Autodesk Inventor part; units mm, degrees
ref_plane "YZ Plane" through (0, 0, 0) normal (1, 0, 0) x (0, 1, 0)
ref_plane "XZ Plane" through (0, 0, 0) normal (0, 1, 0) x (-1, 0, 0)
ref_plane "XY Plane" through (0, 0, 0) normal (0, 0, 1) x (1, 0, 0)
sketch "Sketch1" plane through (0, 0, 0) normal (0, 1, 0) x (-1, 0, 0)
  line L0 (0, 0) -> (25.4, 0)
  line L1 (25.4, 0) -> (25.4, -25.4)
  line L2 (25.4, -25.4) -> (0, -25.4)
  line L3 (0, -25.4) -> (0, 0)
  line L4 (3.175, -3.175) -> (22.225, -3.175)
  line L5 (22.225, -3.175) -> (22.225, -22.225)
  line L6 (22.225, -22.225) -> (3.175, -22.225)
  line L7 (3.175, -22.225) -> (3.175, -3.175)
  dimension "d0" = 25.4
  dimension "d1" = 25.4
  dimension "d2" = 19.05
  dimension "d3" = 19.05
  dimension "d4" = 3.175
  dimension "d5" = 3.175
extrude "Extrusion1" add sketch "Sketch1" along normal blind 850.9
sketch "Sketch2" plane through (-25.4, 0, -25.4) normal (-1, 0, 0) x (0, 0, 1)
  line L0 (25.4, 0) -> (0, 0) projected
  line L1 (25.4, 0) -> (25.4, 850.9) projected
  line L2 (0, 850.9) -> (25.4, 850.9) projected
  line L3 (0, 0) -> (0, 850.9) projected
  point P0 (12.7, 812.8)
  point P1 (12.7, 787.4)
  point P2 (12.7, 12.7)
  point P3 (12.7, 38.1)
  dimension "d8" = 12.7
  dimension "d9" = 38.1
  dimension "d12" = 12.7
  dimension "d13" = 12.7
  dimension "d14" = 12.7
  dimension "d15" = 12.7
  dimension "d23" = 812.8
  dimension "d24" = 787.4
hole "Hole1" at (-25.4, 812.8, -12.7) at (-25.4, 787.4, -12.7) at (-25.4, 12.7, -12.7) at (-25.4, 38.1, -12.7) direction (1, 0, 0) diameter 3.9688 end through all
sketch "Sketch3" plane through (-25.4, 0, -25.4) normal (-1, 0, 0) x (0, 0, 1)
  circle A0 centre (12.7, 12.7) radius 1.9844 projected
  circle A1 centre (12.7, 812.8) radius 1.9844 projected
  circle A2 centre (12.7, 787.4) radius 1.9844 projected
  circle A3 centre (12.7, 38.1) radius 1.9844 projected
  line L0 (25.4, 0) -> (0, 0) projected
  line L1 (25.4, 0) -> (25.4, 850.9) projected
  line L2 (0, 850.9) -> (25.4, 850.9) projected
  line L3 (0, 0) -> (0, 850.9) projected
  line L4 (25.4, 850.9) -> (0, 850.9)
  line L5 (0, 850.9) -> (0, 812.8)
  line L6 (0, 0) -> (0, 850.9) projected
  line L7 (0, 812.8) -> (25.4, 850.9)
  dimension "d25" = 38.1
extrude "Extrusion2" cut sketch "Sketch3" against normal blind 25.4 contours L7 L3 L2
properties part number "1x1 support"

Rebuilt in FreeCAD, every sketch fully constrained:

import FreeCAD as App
import Part
import Sketcher
from FreeCAD import Vector
Q = App.Units.Quantity


def add_polygon(sketch, points):
    """Adds a closed chain of lines whose ends are joined by coincident constraints."""
    first, n = sketch.GeometryCount, len(points)
    for a, b in zip(points, points[1:] + points[:1]):
        sketch.addGeometry(Part.LineSegment(App.Vector(*a, 0), App.Vector(*b, 0)), False)
    for i in range(n):
        sketch.addConstraint(Sketcher.Constraint("Coincident", first + i, 2, first + (i + 1) % n, 1))

doc = App.newDocument("Part")
body = doc.addObject("PartDesign::Body", "Body")

sketch1 = body.newObject("Sketcher::SketchObject", "Sketch")
sketch1.AttachmentSupport = (doc.getObject("XZ_Plane"), [""])
sketch1.MapMode = "FlatFace"
add_polygon(sketch1, [(-25, 0), (0, 0), (0, -25), (-25, -25)])
add_polygon(sketch1, [(-3, -22), (-3, -3), (-22, -3), (-22, -22)])
sketch1.addConstraint(Sketcher.Constraint("Horizontal", 0))
sketch1.addConstraint(Sketcher.Constraint("Vertical", 1))
sketch1.addConstraint(Sketcher.Constraint("Horizontal", 2))
sketch1.addConstraint(Sketcher.Constraint("Vertical", 3))
sketch1.addConstraint(Sketcher.Constraint("Vertical", 4))
sketch1.addConstraint(Sketcher.Constraint("Horizontal", 5))
sketch1.addConstraint(Sketcher.Constraint("Vertical", 6))
sketch1.addConstraint(Sketcher.Constraint("Horizontal", 7))
sketch1.addConstraint(Sketcher.Constraint("Coincident", 0, 2, -1, 1))
sketch1.addConstraint(Sketcher.Constraint("Equal", 2, 1))
sketch1.addConstraint(Sketcher.Constraint("Equal", 7, 4))
sketch1.addConstraint(Sketcher.Constraint("DistanceX", 0, 1, 0, 2, Q("1 in")))
sketch1.addConstraint(Sketcher.Constraint("DistanceX", 5, 2, 5, 1, Q("0.75 in")))
sketch1.addConstraint(Sketcher.Constraint("DistanceX", 4, 2, -1, 1, Q("0.125 in")))
sketch1.addConstraint(Sketcher.Constraint("DistanceY", 4, 2, -1, 1, Q("0.125 in")))
pad1 = body.newObject("PartDesign::Pad", "Pad")
pad1.Profile = sketch1
pad1.Length = Q("33.5 in")
pad1.Reversed = True

sketch2 = body.newObject("Sketcher::SketchObject", "Sketch001")
sketch2.AttachmentSupport = (doc.getObject("YZ_Plane"), [""])
sketch2.MapMode = "FlatFace"
sketch2.AttachmentOffset = App.Placement(Vector(0, 0, -1 * 25.4), App.Rotation())
sketch2.addGeometry(Part.Circle(Vector(812.8, -12.7, 0), Vector(0, 0, 1), 2), False)
sketch2.addGeometry(Part.Circle(Vector(787.4, -12.7, 0), Vector(0, 0, 1), 2), False)
sketch2.addGeometry(Part.Circle(Vector(12.7, -12.7, 0), Vector(0, 0, 1), 2), False)
sketch2.addGeometry(Part.Circle(Vector(38.1, -12.7, 0), Vector(0, 0, 1), 2), False)
sketch2.addConstraint(Sketcher.Constraint("Equal", 0, 1))
sketch2.addConstraint(Sketcher.Constraint("Equal", 1, 2))
sketch2.addConstraint(Sketcher.Constraint("Equal", 2, 3))
sketch2.addConstraint(Sketcher.Constraint("Horizontal", 0, 3, 1, 3))
sketch2.addConstraint(Sketcher.Constraint("Horizontal", 1, 3, 2, 3))
sketch2.addConstraint(Sketcher.Constraint("Horizontal", 2, 3, 3, 3))
sketch2.addConstraint(Sketcher.Constraint("Diameter", 0, Q("0.156252 in")))
sketch2.addConstraint(Sketcher.Constraint("DistanceX", -1, 1, 0, 3, Q("32 in")))
sketch2.addConstraint(Sketcher.Constraint("DistanceX", -1, 1, 1, 3, Q("31 in")))
sketch2.addConstraint(Sketcher.Constraint("DistanceX", 2, 3, 3, 3, Q("1 in")))
sketch2.addConstraint(Sketcher.Constraint("DistanceY", 0, 3, -1, 1, Q("0.5 in")))
sketch2.addConstraint(Sketcher.Constraint("DistanceX", -1, 1, 2, 3, Q("0.5 in")))
doc.recompute()
hole = body.newObject("PartDesign::Hole", "Hole")
hole.Profile = sketch2
hole.ThreadType = "None"
hole.Diameter = Q("0.156252 in")
hole.DepthType = "ThroughAll"
hole.Reversed = True

sketch3 = body.newObject("Sketcher::SketchObject", "Sketch002")
sketch3.AttachmentSupport = (doc.getObject("YZ_Plane"), [""])
sketch3.MapMode = "FlatFace"
sketch3.AttachmentOffset = App.Placement(Vector(0, 0, -1 * 25.4), App.Rotation())
add_polygon(sketch3, [(813, -25), (851, 0), (851, -25)])
sketch3.addConstraint(Sketcher.Constraint("Vertical", 1))
sketch3.addConstraint(Sketcher.Constraint("Horizontal", 2))
sketch3.addConstraint(Sketcher.Constraint("PointOnObject", 0, 2, -1))
sketch3.addConstraint(Sketcher.Constraint("DistanceX", 2, 2, 2, 1, Q("1.5 in")))
sketch3.addConstraint(Sketcher.Constraint("DistanceY", 1, 2, 1, 1, Q("1 in")))
sketch3.addConstraint(Sketcher.Constraint("DistanceX", -1, 1, 2, 2, Q("32 in")))
pocket1 = body.newObject("PartDesign::Pocket", "Pocket")
pocket1.Profile = sketch3
pocket1.Length = Q("1 in")
pocket1.Reversed = True

doc.recompute()
